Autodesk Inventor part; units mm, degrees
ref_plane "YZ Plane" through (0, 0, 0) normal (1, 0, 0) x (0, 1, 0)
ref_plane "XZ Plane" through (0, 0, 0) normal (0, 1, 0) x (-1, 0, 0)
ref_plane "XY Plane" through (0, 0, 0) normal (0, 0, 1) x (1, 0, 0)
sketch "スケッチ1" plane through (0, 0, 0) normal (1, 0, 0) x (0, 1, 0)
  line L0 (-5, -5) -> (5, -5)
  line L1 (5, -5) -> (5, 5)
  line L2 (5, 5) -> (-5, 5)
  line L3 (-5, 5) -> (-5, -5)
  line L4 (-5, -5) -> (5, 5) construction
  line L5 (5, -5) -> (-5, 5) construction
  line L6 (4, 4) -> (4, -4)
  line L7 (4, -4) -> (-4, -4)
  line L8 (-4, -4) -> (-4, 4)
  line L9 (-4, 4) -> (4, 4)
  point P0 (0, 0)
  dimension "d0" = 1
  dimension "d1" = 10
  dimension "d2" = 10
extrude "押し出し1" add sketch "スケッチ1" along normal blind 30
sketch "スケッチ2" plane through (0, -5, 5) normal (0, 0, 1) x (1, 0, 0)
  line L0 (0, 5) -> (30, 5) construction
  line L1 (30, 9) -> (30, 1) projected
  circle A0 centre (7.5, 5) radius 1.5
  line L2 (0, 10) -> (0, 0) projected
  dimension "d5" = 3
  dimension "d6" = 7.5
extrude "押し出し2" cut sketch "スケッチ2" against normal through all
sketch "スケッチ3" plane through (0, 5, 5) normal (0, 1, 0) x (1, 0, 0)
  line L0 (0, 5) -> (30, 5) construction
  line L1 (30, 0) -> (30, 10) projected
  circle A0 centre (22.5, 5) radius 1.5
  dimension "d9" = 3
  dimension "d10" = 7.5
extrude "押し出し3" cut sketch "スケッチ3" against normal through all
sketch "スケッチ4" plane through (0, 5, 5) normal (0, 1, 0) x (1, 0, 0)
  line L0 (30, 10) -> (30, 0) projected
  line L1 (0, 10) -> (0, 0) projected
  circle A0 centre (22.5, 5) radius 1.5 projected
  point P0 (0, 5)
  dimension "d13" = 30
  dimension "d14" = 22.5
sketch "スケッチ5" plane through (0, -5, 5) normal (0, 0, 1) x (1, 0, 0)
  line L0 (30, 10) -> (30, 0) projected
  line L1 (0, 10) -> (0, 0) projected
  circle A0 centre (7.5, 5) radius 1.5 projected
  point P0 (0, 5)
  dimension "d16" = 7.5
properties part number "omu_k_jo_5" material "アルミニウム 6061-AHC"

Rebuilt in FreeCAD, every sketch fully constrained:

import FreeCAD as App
import Part
import Sketcher

V = App.Vector


def add_polygon(sketch, points):
    """Adds a closed chain of lines whose ends are joined by coincident constraints."""
    first, n = sketch.GeometryCount, len(points)
    for a, b in zip(points, points[1:] + points[:1]):
        sketch.addGeometry(Part.LineSegment(App.Vector(*a, 0), App.Vector(*b, 0)), False)
    for i in range(n):
        sketch.addConstraint(Sketcher.Constraint("Coincident", first + i, 2, first + (i + 1) % n, 1))

doc = App.newDocument("Part")
body = doc.addObject("PartDesign::Body", "Body")

# Sketch on YZ plane
sketch1 = body.newObject("Sketcher::SketchObject", "Sketch")
sketch1.AttachmentSupport = (doc.getObject("YZ_Plane"), [""])
sketch1.MapMode = "FlatFace"
add_polygon(sketch1, [(-5, 5), (-5, -5), (5, -5), (5, 5)])  # lines 0-3
add_polygon(sketch1, [(-4, 4), (4, 4), (4, -4), (-4, -4)])  # lines 4-7
sketch1.addConstraint(Sketcher.Constraint("Vertical", 0))
sketch1.addConstraint(Sketcher.Constraint("Horizontal", 1))
sketch1.addConstraint(Sketcher.Constraint("Vertical", 2))
sketch1.addConstraint(Sketcher.Constraint("Horizontal", 3))
sketch1.addConstraint(Sketcher.Constraint("Horizontal", 4))
sketch1.addConstraint(Sketcher.Constraint("Vertical", 5))
sketch1.addConstraint(Sketcher.Constraint("Horizontal", 6))
sketch1.addConstraint(Sketcher.Constraint("Vertical", 7))
sketch1.addConstraint(Sketcher.Constraint("Symmetric", 0, 2, 2, 2, -1, 1))
sketch1.addConstraint(Sketcher.Constraint("Symmetric", 4, 2, 6, 2, -1, 1))
sketch1.addConstraint(Sketcher.Constraint("Equal", 3, 0))
sketch1.addConstraint(Sketcher.Constraint("Equal", 6, 5))
sketch1.addConstraint(Sketcher.Constraint("DistanceX", 1, 1, 1, 2, 10.0))
sketch1.addConstraint(Sketcher.Constraint("DistanceX", 4, 2, 2, 2, 1.0))
pad1 = body.newObject("PartDesign::Pad", "Pad")
pad1.Profile = sketch1
pad1.Length = 30

# Sketch on XY plane
sketch2 = body.newObject("Sketcher::SketchObject", "Sketch001")
sketch2.AttachmentSupport = (doc.getObject("XY_Plane"), [""])
sketch2.MapMode = "FlatFace"
sketch2.AttachmentOffset = App.Placement(V(0, 0, 5), App.Rotation())
sketch2.addGeometry(Part.Circle(V(7.5, 0, 0), V(0, 0, 1), 1.5), False)
sketch2.addConstraint(Sketcher.Constraint("PointOnObject", 0, 3, -1))
sketch2.addConstraint(Sketcher.Constraint("Diameter", 0, 3.0))
sketch2.addConstraint(Sketcher.Constraint("DistanceX", -1, 1, 0, 3, 7.5))
pocket1 = body.newObject("PartDesign::Pocket", "Pocket")
pocket1.Profile = sketch2
pocket1.Type = "ThroughAll"

# Sketch on XZ plane
sketch3 = body.newObject("Sketcher::SketchObject", "Sketch002")
sketch3.AttachmentSupport = (doc.getObject("XZ_Plane"), [""])
sketch3.MapMode = "FlatFace"
sketch3.AttachmentOffset = App.Placement(V(0, 0, -5), App.Rotation())
sketch3.addGeometry(Part.Circle(V(22.5, 0, 0), V(0, 0, 1), 1.5), False)
sketch3.addConstraint(Sketcher.Constraint("PointOnObject", 0, 3, -1))
sketch3.addConstraint(Sketcher.Constraint("Diameter", 0, 3.0))
sketch3.addConstraint(Sketcher.Constraint("DistanceX", -1, 1, 0, 3, 22.5))
pocket2 = body.newObject("PartDesign::Pocket", "Pocket001")
pocket2.Profile = sketch3
pocket2.Type = "ThroughAll"
pocket2.Reversed = True

doc.recompute()
